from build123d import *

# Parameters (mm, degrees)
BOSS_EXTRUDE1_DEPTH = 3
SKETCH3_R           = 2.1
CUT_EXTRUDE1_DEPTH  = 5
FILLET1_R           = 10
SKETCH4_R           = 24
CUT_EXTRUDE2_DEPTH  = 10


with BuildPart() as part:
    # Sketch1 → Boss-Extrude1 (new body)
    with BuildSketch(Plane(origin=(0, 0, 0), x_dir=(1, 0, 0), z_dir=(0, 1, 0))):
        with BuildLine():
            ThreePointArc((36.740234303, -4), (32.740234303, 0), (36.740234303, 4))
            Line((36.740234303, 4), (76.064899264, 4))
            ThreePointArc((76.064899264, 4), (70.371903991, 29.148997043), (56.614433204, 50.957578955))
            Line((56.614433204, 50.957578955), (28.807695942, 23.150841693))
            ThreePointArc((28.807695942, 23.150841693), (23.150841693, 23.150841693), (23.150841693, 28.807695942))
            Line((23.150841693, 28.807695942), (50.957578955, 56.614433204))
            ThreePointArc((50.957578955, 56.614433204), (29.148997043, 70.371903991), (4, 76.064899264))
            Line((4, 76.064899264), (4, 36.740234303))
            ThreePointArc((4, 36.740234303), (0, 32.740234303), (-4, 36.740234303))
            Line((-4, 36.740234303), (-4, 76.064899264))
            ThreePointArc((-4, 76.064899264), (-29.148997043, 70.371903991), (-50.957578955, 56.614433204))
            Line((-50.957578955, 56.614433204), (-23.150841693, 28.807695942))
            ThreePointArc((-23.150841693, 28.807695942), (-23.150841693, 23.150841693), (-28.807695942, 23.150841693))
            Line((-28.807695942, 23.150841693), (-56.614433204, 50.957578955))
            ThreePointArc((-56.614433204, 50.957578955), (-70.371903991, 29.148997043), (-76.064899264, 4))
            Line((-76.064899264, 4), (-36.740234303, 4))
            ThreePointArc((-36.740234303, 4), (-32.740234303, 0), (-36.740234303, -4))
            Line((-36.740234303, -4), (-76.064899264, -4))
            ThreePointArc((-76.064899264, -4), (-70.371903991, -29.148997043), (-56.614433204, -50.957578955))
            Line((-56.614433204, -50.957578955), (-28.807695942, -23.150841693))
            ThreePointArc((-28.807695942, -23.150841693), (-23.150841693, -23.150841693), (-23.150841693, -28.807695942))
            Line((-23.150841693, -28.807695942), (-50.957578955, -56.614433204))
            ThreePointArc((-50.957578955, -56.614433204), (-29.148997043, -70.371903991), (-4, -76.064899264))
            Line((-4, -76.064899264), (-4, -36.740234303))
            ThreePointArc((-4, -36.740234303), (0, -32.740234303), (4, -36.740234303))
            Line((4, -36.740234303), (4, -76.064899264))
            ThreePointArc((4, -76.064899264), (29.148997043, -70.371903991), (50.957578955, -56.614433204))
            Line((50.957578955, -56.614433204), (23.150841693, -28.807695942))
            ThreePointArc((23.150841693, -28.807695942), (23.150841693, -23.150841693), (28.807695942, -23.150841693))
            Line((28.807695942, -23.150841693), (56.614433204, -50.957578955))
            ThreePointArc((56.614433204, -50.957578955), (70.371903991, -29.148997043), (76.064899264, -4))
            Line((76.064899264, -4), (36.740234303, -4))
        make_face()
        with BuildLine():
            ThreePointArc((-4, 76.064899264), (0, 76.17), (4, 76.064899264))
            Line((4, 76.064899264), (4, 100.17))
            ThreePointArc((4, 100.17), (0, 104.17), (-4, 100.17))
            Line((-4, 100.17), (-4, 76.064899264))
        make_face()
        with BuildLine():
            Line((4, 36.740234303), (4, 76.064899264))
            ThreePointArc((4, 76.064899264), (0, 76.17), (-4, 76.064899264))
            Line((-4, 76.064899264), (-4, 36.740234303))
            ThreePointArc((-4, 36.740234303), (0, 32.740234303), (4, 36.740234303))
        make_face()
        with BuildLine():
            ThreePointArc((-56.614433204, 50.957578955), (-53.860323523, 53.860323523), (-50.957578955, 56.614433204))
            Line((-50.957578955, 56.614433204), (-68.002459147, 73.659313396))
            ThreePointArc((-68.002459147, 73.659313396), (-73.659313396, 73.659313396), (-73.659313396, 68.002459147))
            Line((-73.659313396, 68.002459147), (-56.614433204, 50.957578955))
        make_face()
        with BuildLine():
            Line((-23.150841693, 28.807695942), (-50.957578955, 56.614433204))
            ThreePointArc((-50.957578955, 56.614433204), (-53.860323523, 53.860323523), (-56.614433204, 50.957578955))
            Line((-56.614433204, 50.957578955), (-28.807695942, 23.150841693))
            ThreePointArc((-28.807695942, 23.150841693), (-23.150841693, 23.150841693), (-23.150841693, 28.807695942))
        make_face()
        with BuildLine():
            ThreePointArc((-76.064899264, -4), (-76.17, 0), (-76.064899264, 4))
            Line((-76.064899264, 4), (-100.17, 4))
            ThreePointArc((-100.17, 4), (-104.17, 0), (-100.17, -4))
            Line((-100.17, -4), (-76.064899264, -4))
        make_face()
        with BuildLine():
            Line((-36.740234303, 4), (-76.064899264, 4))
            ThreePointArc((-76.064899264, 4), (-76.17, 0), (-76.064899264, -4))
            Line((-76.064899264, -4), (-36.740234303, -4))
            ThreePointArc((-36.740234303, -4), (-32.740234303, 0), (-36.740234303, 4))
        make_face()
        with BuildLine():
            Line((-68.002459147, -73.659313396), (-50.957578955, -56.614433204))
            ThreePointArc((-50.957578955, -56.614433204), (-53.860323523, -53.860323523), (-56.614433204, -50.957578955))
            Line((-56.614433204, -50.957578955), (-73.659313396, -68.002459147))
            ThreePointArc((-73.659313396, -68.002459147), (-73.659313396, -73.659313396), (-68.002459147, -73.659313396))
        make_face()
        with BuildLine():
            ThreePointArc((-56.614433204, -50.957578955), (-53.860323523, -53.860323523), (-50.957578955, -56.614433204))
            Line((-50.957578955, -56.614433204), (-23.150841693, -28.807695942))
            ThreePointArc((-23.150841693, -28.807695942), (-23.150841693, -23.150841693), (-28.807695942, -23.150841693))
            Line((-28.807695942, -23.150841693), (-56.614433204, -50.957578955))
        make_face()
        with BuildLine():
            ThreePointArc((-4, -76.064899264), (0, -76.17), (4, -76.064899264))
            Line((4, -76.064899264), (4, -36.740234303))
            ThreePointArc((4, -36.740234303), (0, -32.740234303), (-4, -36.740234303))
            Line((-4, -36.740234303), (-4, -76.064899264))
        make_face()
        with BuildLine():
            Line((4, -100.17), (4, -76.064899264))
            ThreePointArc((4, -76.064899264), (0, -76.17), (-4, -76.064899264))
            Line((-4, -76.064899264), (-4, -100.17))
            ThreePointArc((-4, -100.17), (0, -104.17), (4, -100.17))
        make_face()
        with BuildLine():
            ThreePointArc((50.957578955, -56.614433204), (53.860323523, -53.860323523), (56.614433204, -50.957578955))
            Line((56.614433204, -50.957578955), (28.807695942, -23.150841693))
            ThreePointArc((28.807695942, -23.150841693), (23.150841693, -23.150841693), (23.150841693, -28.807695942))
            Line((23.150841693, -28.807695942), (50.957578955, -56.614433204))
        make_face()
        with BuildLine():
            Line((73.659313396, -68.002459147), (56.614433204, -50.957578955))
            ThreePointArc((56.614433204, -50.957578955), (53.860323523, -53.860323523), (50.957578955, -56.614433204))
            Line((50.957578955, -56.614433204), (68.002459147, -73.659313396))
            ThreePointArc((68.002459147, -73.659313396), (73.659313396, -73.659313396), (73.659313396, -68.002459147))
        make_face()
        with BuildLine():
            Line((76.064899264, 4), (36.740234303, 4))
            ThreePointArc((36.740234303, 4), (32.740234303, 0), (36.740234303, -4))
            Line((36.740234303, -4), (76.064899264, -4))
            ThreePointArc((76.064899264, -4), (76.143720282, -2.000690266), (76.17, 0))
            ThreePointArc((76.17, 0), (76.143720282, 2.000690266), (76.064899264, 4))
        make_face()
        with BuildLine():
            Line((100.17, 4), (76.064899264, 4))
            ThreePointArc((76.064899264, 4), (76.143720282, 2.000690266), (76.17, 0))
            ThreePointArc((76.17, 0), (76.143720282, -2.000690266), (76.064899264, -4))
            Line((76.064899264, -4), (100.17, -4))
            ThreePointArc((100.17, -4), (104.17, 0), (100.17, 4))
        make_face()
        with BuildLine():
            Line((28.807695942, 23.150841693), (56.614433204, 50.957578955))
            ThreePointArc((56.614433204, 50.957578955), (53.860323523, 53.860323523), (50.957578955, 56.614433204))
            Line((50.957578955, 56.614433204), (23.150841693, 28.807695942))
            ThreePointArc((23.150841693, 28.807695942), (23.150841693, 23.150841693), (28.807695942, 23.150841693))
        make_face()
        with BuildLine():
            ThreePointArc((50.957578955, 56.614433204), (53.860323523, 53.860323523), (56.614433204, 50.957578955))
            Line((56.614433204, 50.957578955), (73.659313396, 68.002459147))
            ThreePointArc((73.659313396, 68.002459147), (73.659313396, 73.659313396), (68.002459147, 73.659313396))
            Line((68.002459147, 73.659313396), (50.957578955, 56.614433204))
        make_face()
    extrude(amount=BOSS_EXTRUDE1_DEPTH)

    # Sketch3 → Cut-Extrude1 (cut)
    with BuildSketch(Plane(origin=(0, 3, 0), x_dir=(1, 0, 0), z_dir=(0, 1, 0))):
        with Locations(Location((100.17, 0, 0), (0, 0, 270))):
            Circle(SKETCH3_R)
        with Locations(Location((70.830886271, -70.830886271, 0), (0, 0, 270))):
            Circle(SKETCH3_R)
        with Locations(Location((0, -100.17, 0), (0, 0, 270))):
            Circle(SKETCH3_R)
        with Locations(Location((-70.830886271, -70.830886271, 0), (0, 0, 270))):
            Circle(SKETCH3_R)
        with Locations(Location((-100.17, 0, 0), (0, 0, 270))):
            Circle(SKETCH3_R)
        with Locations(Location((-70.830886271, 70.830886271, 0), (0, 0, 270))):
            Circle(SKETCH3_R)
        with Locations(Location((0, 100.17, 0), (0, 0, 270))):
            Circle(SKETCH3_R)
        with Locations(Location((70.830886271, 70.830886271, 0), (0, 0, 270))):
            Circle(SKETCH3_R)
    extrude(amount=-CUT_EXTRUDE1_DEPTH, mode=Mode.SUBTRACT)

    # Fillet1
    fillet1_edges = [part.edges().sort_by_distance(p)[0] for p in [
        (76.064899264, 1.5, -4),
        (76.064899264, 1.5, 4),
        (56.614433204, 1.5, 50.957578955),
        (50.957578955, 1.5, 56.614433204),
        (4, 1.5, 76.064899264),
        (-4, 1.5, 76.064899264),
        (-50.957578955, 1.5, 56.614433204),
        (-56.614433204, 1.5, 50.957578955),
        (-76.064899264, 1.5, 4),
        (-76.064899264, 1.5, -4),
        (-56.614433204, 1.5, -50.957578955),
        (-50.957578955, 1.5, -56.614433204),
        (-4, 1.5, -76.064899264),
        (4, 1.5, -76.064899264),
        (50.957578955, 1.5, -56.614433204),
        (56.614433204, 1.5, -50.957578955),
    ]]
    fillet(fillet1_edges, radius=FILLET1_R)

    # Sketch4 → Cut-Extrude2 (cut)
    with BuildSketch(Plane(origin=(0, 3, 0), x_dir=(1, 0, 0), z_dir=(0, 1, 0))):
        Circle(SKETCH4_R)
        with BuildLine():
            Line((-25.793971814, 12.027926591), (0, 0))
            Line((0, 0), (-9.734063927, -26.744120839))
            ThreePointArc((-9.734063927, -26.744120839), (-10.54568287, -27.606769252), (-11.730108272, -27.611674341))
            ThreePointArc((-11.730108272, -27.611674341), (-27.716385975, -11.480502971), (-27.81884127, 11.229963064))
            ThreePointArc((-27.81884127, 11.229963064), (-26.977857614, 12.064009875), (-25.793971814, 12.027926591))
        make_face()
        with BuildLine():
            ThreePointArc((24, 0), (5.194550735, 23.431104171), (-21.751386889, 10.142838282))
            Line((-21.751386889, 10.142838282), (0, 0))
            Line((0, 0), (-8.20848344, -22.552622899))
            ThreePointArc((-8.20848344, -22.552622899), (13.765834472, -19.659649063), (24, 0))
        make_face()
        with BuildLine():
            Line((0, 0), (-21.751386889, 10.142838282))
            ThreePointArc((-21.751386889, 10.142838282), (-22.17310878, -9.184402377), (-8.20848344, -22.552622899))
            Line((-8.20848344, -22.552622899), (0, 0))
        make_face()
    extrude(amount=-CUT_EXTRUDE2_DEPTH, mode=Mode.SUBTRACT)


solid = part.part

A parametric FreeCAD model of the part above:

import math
import FreeCAD as App
import Part
import Sketcher
Q = App.Units.Quantity


def edges_at(feature, points):
    """Names of the edges that pass closest to the given points."""
    edges = feature.Shape.Edges
    near = lambda p: min(range(len(edges)), key=lambda i: edges[i].distToShape(Part.Vertex(*p))[0])
    return sorted({f"Edge{near(p) + 1}" for p in points})

doc = App.newDocument("Part")
body = doc.addObject("PartDesign::Body", "Body")

# Sketch on XZ plane
sketch1 = body.newObject("Sketcher::SketchObject", "Sketch")
sketch1.AttachmentSupport = (doc.getObject("XZ_Plane"), [""])
sketch1.MapMode = "FlatFace"
sketch1.addGeometry(Part.ArcOfCircle(Part.Circle(App.Vector(0, 0, 0), App.Vector(0, 0, 1), 76.17), math.radians(-41.989778), math.radians(-3.010222)), False)
sketch1.addGeometry(Part.LineSegment(App.Vector(56.614433, -50.957579, 0), App.Vector(73.659313, -68.002459, 0)), False)
sketch1.addGeometry(Part.ArcOfCircle(Part.Circle(App.Vector(70.830886, -70.830886, 0), App.Vector(0, 0, 1), 4), math.radians(-135), math.radians(45)), False)
sketch1.addGeometry(Part.LineSegment(App.Vector(68.002459, -73.659313, 0), App.Vector(50.957579, -56.614433, 0)), False)
sketch1.addGeometry(Part.ArcOfCircle(Part.Circle(App.Vector(0, 0, 0), App.Vector(0, 0, 1), 76.17), math.radians(-86.989778), math.radians(-48.010222)), False)
sketch1.addGeometry(Part.LineSegment(App.Vector(4, -76.064899, 0), App.Vector(4, -100.17, 0)), False)
sketch1.addGeometry(Part.ArcOfCircle(Part.Circle(App.Vector(0, -100.17, 0), App.Vector(0, 0, 1), 4), math.radians(180), math.radians(360)), False)
sketch1.addGeometry(Part.LineSegment(App.Vector(-4, -100.17, 0), App.Vector(-4, -76.064899, 0)), False)
sketch1.addGeometry(Part.ArcOfCircle(Part.Circle(App.Vector(0, 0, 0), App.Vector(0, 0, 1), 76.17), math.radians(-131.989778), math.radians(-93.010222)), False)
sketch1.addGeometry(Part.LineSegment(App.Vector(-50.957579, -56.614433, 0), App.Vector(-68.002459, -73.659313, 0)), False)
sketch1.addGeometry(Part.ArcOfCircle(Part.Circle(App.Vector(-70.830886, -70.830886, 0), App.Vector(0, 0, 1), 4), math.radians(135), math.radians(315)), False)
sketch1.addGeometry(Part.LineSegment(App.Vector(-73.659313, -68.002459, 0), App.Vector(-56.614433, -50.957579, 0)), False)
sketch1.addGeometry(Part.ArcOfCircle(Part.Circle(App.Vector(0, 0, 0), App.Vector(0, 0, 1), 76.17), math.radians(-176.989778), math.radians(-138.010222)), False)
sketch1.addGeometry(Part.LineSegment(App.Vector(-76.064899, -4, 0), App.Vector(-100.17, -4, 0)), False)
sketch1.addGeometry(Part.ArcOfCircle(Part.Circle(App.Vector(-100.17, 0, 0), App.Vector(0, 0, 1), 4), math.radians(90), math.radians(270)), False)
sketch1.addGeometry(Part.LineSegment(App.Vector(-100.17, 4, 0), App.Vector(-76.064899, 4, 0)), False)
sketch1.addGeometry(Part.ArcOfCircle(Part.Circle(App.Vector(0, 0, 0), App.Vector(0, 0, 1), 76.17), math.radians(138.010222), math.radians(176.989778)), False)
sketch1.addGeometry(Part.LineSegment(App.Vector(-56.614433, 50.957579, 0), App.Vector(-73.659313, 68.002459, 0)), False)
sketch1.addGeometry(Part.ArcOfCircle(Part.Circle(App.Vector(-70.830886, 70.830886, 0), App.Vector(0, 0, 1), 4), math.radians(45), math.radians(225)), False)
sketch1.addGeometry(Part.LineSegment(App.Vector(-68.002459, 73.659313, 0), App.Vector(-50.957579, 56.614433, 0)), False)
sketch1.addGeometry(Part.ArcOfCircle(Part.Circle(App.Vector(0, 0, 0), App.Vector(0, 0, 1), 76.17), math.radians(93.010222), math.radians(131.989778)), False)
sketch1.addGeometry(Part.LineSegment(App.Vector(-4, 76.064899, 0), App.Vector(-4, 100.17, 0)), False)
sketch1.addGeometry(Part.ArcOfCircle(Part.Circle(App.Vector(0, 100.17, 0), App.Vector(0, 0, 1), 4), math.radians(0), math.radians(180)), False)
sketch1.addGeometry(Part.LineSegment(App.Vector(4, 100.17, 0), App.Vector(4, 76.064899, 0)), False)
sketch1.addGeometry(Part.ArcOfCircle(Part.Circle(App.Vector(0, 0, 0), App.Vector(0, 0, 1), 76.17), math.radians(48.010222), math.radians(86.989778)), False)
sketch1.addGeometry(Part.LineSegment(App.Vector(50.957579, 56.614433, 0), App.Vector(68.002459, 73.659313, 0)), False)
sketch1.addGeometry(Part.ArcOfCircle(Part.Circle(App.Vector(70.830886, 70.830886, 0), App.Vector(0, 0, 1), 4), math.radians(-45), math.radians(135)), False)
sketch1.addGeometry(Part.LineSegment(App.Vector(73.659313, 68.002459, 0), App.Vector(56.614433, 50.957579, 0)), False)
sketch1.addGeometry(Part.ArcOfCircle(Part.Circle(App.Vector(0, 0, 0), App.Vector(0, 0, 1), 76.17), math.radians(3.010222), math.radians(41.989778)), False)
sketch1.addGeometry(Part.LineSegment(App.Vector(76.064899, 4, 0), App.Vector(100.17, 4, 0)), False)
sketch1.addGeometry(Part.ArcOfCircle(Part.Circle(App.Vector(100.17, 0, 0), App.Vector(0, 0, 1), 4), math.radians(-90), math.radians(90)), False)
sketch1.addGeometry(Part.LineSegment(App.Vector(100.17, -4, 0), App.Vector(76.064899, -4, 0)), False)
sketch1.addConstraint(Sketcher.Constraint("Coincident", 0, 1, 1, 1))
sketch1.addConstraint(Sketcher.Constraint("Tangent", 1, 2, 2, 2))
sketch1.addConstraint(Sketcher.Constraint("Tangent", 2, 1, 3, 1))
sketch1.addConstraint(Sketcher.Constraint("Coincident", 3, 2, 4, 2))
sketch1.addConstraint(Sketcher.Constraint("Coincident", 4, 1, 5, 1))
sketch1.addConstraint(Sketcher.Constraint("Tangent", 5, 2, 6, 2))
sketch1.addConstraint(Sketcher.Constraint("Tangent", 6, 1, 7, 1))
sketch1.addConstraint(Sketcher.Constraint("Coincident", 7, 2, 8, 2))
sketch1.addConstraint(Sketcher.Constraint("Coincident", 8, 1, 9, 1))
sketch1.addConstraint(Sketcher.Constraint("Tangent", 9, 2, 10, 2))
sketch1.addConstraint(Sketcher.Constraint("Tangent", 10, 1, 11, 1))
sketch1.addConstraint(Sketcher.Constraint("Coincident", 11, 2, 12, 2))
sketch1.addConstraint(Sketcher.Constraint("Coincident", 12, 1, 13, 1))
sketch1.addConstraint(Sketcher.Constraint("Tangent", 13, 2, 14, 2))
sketch1.addConstraint(Sketcher.Constraint("Tangent", 14, 1, 15, 1))
sketch1.addConstraint(Sketcher.Constraint("Coincident", 15, 2, 16, 2))
sketch1.addConstraint(Sketcher.Constraint("Coincident", 16, 1, 17, 1))
sketch1.addConstraint(Sketcher.Constraint("Tangent", 17, 2, 18, 2))
sketch1.addConstraint(Sketcher.Constraint("Tangent", 18, 1, 19, 1))
sketch1.addConstraint(Sketcher.Constraint("Coincident", 19, 2, 20, 2))
sketch1.addConstraint(Sketcher.Constraint("Coincident", 20, 1, 21, 1))
sketch1.addConstraint(Sketcher.Constraint("Tangent", 21, 2, 22, 2))
sketch1.addConstraint(Sketcher.Constraint("Tangent", 22, 1, 23, 1))
sketch1.addConstraint(Sketcher.Constraint("Coincident", 23, 2, 24, 2))
sketch1.addConstraint(Sketcher.Constraint("Coincident", 24, 1, 25, 1))
sketch1.addConstraint(Sketcher.Constraint("Tangent", 25, 2, 26, 2))
sketch1.addConstraint(Sketcher.Constraint("Tangent", 26, 1, 27, 1))
sketch1.addConstraint(Sketcher.Constraint("Coincident", 27, 2, 28, 2))
sketch1.addConstraint(Sketcher.Constraint("Coincident", 28, 1, 29, 1))
sketch1.addConstraint(Sketcher.Constraint("Tangent", 29, 2, 30, 2))
sketch1.addConstraint(Sketcher.Constraint("Tangent", 30, 1, 31, 1))
sketch1.addConstraint(Sketcher.Constraint("Coincident", 31, 2, 0, 2))
sketch1.addConstraint(Sketcher.Constraint("Vertical", 5))
sketch1.addConstraint(Sketcher.Constraint("Vertical", 7))
sketch1.addConstraint(Sketcher.Constraint("Horizontal", 13))
sketch1.addConstraint(Sketcher.Constraint("Horizontal", 15))
sketch1.addConstraint(Sketcher.Constraint("Vertical", 21))
sketch1.addConstraint(Sketcher.Constraint("Vertical", 23))
sketch1.addConstraint(Sketcher.Constraint("Horizontal", 29))
sketch1.addConstraint(Sketcher.Constraint("Horizontal", 31))
sketch1.addConstraint(Sketcher.Constraint("Coincident", 0, 3, -1, 1))
sketch1.addConstraint(Sketcher.Constraint("Coincident", 4, 3, -1, 1))
sketch1.addConstraint(Sketcher.Constraint("Coincident", 8, 3, -1, 1))
sketch1.addConstraint(Sketcher.Constraint("Coincident", 12, 3, -1, 1))
sketch1.addConstraint(Sketcher.Constraint("Coincident", 16, 3, -1, 1))
sketch1.addConstraint(Sketcher.Constraint("Coincident", 20, 3, -1, 1))
sketch1.addConstraint(Sketcher.Constraint("Coincident", 24, 3, -1, 1))
sketch1.addConstraint(Sketcher.Constraint("Coincident", 28, 3, -1, 1))
sketch1.addConstraint(Sketcher.Constraint("Equal", 0, 4))
sketch1.addConstraint(Sketcher.Constraint("Equal", 2, 6))
sketch1.addConstraint(Sketcher.Constraint("Equal", 4, 8))
sketch1.addConstraint(Sketcher.Constraint("Equal", 6, 10))
sketch1.addConstraint(Sketcher.Constraint("Equal", 8, 12))
sketch1.addConstraint(Sketcher.Constraint("Equal", 10, 14))
sketch1.addConstraint(Sketcher.Constraint("Equal", 12, 16))
sketch1.addConstraint(Sketcher.Constraint("Equal", 14, 18))
sketch1.addConstraint(Sketcher.Constraint("Equal", 16, 20))
sketch1.addConstraint(Sketcher.Constraint("Equal", 18, 22))
sketch1.addConstraint(Sketcher.Constraint("Equal", 20, 24))
sketch1.addConstraint(Sketcher.Constraint("Equal", 22, 26))
sketch1.addConstraint(Sketcher.Constraint("Equal", 24, 28))
sketch1.addConstraint(Sketcher.Constraint("Equal", 26, 30))
sketch1.addConstraint(Sketcher.Constraint("Symmetric", 2, 3, 18, 3, -1, 1))
sketch1.addConstraint(Sketcher.Constraint("Symmetric", 6, 3, 22, 3, -1, 1))
sketch1.addConstraint(Sketcher.Constraint("Symmetric", 10, 3, 26, 3, -1, 1))
sketch1.addConstraint(Sketcher.Constraint("Symmetric", 14, 3, 30, 3, -1, 1))
sketch1.addConstraint(Sketcher.Constraint("Symmetric", 2, 3, 10, 3, -2))
sketch1.addConstraint(Sketcher.Constraint("PointOnObject", 6, 3, -2))
sketch1.addConstraint(Sketcher.Constraint("PointOnObject", 14, 3, -1))
sketch1.addConstraint(Sketcher.Constraint("Parallel", 1, 3))
sketch1.addConstraint(Sketcher.Constraint("Perpendicular", 3, 9))
sketch1.addConstraint(Sketcher.Constraint("Parallel", 9, 11))
sketch1.addConstraint(Sketcher.Constraint("Perpendicular", 11, 17))
sketch1.addConstraint(Sketcher.Constraint("Parallel", 17, 19))
sketch1.addConstraint(Sketcher.Constraint("Perpendicular", 19, 25))
sketch1.addConstraint(Sketcher.Constraint("Parallel", 25, 27))
sketch1.addConstraint(Sketcher.Constraint("Horizontal", 3, 2, 8, 1))
sketch1.addConstraint(Sketcher.Constraint("Equal", 31, 5))
sketch1.addConstraint(Sketcher.Constraint("Equal", 1, 3))
sketch1.addConstraint(Sketcher.Constraint("Radius", 2, Q("4 mm")))
sketch1.addConstraint(Sketcher.Constraint("Radius", 0, Q("76.17 mm")))
sketch1.addConstraint(Sketcher.Constraint("DistanceY", 6, 3, -1, 1, Q("100.17 mm")))
sketch1.addConstraint(Sketcher.Constraint("Distance", 1, Q("24.105101 mm")))
pad1 = body.newObject("PartDesign::Pad", "Pad")
pad1.Profile = sketch1
pad1.Length = 3
pad1.Reversed = True

# Sketch on XZ plane
sketch2 = body.newObject("Sketcher::SketchObject", "Sketch001")
sketch2.AttachmentSupport = (doc.getObject("XZ_Plane"), [""])
sketch2.MapMode = "FlatFace"
sketch2.AttachmentOffset = App.Placement(App.Vector(0, 0, -3), App.Rotation())
sketch2.addGeometry(Part.Circle(App.Vector(100.17, 0, 0), App.Vector(0, 0, 1), 2.1), False)
sketch2.addGeometry(Part.Circle(App.Vector(70.830886, 70.830886, 0), App.Vector(0, 0, 1), 2.1), False)
sketch2.addGeometry(Part.Circle(App.Vector(0, 100.17, 0), App.Vector(0, 0, 1), 2.1), False)
sketch2.addGeometry(Part.Circle(App.Vector(-70.830886, 70.830886, 0), App.Vector(0, 0, 1), 2.1), False)
sketch2.addGeometry(Part.Circle(App.Vector(-100.17, 0, 0), App.Vector(0, 0, 1), 2.1), False)
sketch2.addGeometry(Part.Circle(App.Vector(-70.830886, -70.830886, 0), App.Vector(0, 0, 1), 2.1), False)
sketch2.addGeometry(Part.Circle(App.Vector(0, -100.17, 0), App.Vector(0, 0, 1), 2.1), False)
sketch2.addGeometry(Part.Circle(App.Vector(70.830886, -70.830886, 0), App.Vector(0, 0, 1), 2.1), False)
sketch2.addConstraint(Sketcher.Constraint("Equal", 0, 1))
sketch2.addConstraint(Sketcher.Constraint("Equal", 1, 2))
sketch2.addConstraint(Sketcher.Constraint("Equal", 2, 3))
sketch2.addConstraint(Sketcher.Constraint("Equal", 3, 4))
sketch2.addConstraint(Sketcher.Constraint("Equal", 4, 5))
sketch2.addConstraint(Sketcher.Constraint("Equal", 5, 6))
sketch2.addConstraint(Sketcher.Constraint("Equal", 6, 7))
sketch2.addConstraint(Sketcher.Constraint("Symmetric", 0, 3, 4, 3, -1, 1))
sketch2.addConstraint(Sketcher.Constraint("Symmetric", 1, 3, 5, 3, -1, 1))
sketch2.addConstraint(Sketcher.Constraint("Symmetric", 2, 3, 6, 3, -1, 1))
sketch2.addConstraint(Sketcher.Constraint("Symmetric", 3, 3, 7, 3, -1, 1))
sketch2.addConstraint(Sketcher.Constraint("Symmetric", 1, 3, 3, 3, -2))
sketch2.addConstraint(Sketcher.Constraint("PointOnObject", 0, 3, -1))
sketch2.addConstraint(Sketcher.Constraint("PointOnObject", 2, 3, -2))
sketch2.addConstraint(Sketcher.Constraint("Diameter", 0, Q("4.2 mm")))
sketch2.addConstraint(Sketcher.Constraint("DistanceX", -1, 1, 0, 3, Q("100.17 mm")))
sketch2.addConstraint(Sketcher.Constraint("DistanceY", -1, 1, 2, 3, Q("100.17 mm")))
sketch2.addConstraint(Sketcher.Constraint("DistanceX", -1, 1, 1, 3, Q("70.830886 mm")))
sketch2.addConstraint(Sketcher.Constraint("DistanceY", -1, 1, 1, 3, Q("70.830886 mm")))
pocket1 = body.newObject("PartDesign::Pocket", "Pocket")
pocket1.Profile = sketch2
pocket1.Length = 5
pocket1.Reversed = True
doc.recompute()

fillet = body.newObject("PartDesign::Fillet", "Fillet")
fillet.Base = (pocket1, edges_at(pocket1, [
    (76.065, 1.5, -4),
    (76.065, 1.5, 4),
    (56.614, 1.5, 50.958),
    (50.958, 1.5, 56.614),
    (4, 1.5, 76.065),
    (-4, 1.5, 76.065),
    (-50.958, 1.5, 56.614),
    (-56.614, 1.5, 50.958),
    (-76.065, 1.5, 4),
    (-76.065, 1.5, -4),
    (-56.614, 1.5, -50.958),
    (-50.958, 1.5, -56.614),
    (-4, 1.5, -76.065),
    (4, 1.5, -76.065),
    (50.958, 1.5, -56.614),
    (56.614, 1.5, -50.958),
]))
fillet.Radius = 10

# Sketch on XZ plane
sketch3 = body.newObject("Sketcher::SketchObject", "Sketch002")
sketch3.AttachmentSupport = (doc.getObject("XZ_Plane"), [""])
sketch3.MapMode = "FlatFace"
sketch3.AttachmentOffset = App.Placement(App.Vector(0, 0, -3), App.Rotation())
sketch3.addGeometry(Part.LineSegment(App.Vector(-21.751387, -10.142838, 0), App.Vector(-25.793972, -12.027927, 0)), False)
sketch3.addGeometry(Part.ArcOfCircle(Part.Circle(App.Vector(-26.427899, -10.668465, 0), App.Vector(0, 0, 1), 1.5), math.radians(-158.016961), math.radians(-65)), False)
sketch3.addGeometry(Part.ArcOfCircle(Part.Circle(App.Vector(0, 0, 0), App.Vector(0, 0, 1), 30), math.radians(113.016961), math.radians(201.983039)), False)
sketch3.addGeometry(Part.ArcOfCircle(Part.Circle(App.Vector(-11.143603, 26.231091, 0), App.Vector(0, 0, 1), 1.5), math.radians(20), math.radians(113.016961)), False)
sketch3.addGeometry(Part.LineSegment(App.Vector(-9.734064, 26.744121, 0), App.Vector(-8.208483, 22.552623, 0)), False)
sketch3.addGeometry(Part.ArcOfCircle(Part.Circle(App.Vector(0, 0, 0), App.Vector(0, 0, 1), 24), math.radians(-155), math.radians(110)), False)
sketch3.addConstraint(Sketcher.Constraint("Tangent", 0, 2, 1, 2))
sketch3.addConstraint(Sketcher.Constraint("Tangent", 1, 1, 2, 2))
sketch3.addConstraint(Sketcher.Constraint("Tangent", 2, 1, 3, 2))
sketch3.addConstraint(Sketcher.Constraint("Tangent", 3, 1, 4, 1))
sketch3.addConstraint(Sketcher.Constraint("Coincident", 4, 2, 5, 2))
sketch3.addConstraint(Sketcher.Constraint("Coincident", 5, 1, 0, 1))
sketch3.addConstraint(Sketcher.Constraint("Coincident", 2, 3, -1, 1))
sketch3.addConstraint(Sketcher.Constraint("Coincident", 5, 3, -1, 1))
sketch3.addConstraint(Sketcher.Constraint("Equal", 1, 3))
sketch3.addConstraint(Sketcher.Constraint("Equal", 0, 4))
sketch3.addConstraint(Sketcher.Constraint("Radius", 2, Q("30 mm")))
sketch3.addConstraint(Sketcher.Constraint("Radius", 5, Q("24 mm")))
sketch3.addConstraint(Sketcher.Constraint("Radius", 1, Q("1.5 mm")))
sketch3.addConstraint(Sketcher.Constraint("Angle", 0, Q("-155 deg")))
sketch3.addConstraint(Sketcher.Constraint("Angle", 4, Q("-70 deg")))
sketch3.addConstraint(Sketcher.Constraint("Distance", 0, Q("4.460499 mm")))
pocket2 = body.newObject("PartDesign::Pocket", "Pocket001")
pocket2.Profile = sketch3
pocket2.Length = 10
pocket2.Reversed = True

doc.recompute()
